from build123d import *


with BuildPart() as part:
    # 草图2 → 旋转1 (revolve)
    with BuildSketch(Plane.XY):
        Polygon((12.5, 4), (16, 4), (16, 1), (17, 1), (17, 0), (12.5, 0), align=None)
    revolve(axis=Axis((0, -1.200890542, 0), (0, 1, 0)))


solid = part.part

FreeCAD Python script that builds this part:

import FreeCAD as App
import Part
import Sketcher

V = App.Vector


def add_polygon(sketch, points):
    """Adds a closed chain of lines whose ends are joined by coincident constraints."""
    first, n = sketch.GeometryCount, len(points)
    for a, b in zip(points, points[1:] + points[:1]):
        sketch.addGeometry(Part.LineSegment(App.Vector(*a, 0), App.Vector(*b, 0)), False)
    for i in range(n):
        sketch.addConstraint(Sketcher.Constraint("Coincident", first + i, 2, first + (i + 1) % n, 1))

doc = App.newDocument("Part")
body = doc.addObject("PartDesign::Body", "Body")

# Sketch on XY plane
sketch1 = body.newObject("Sketcher::SketchObject", "Sketch")
sketch1.AttachmentSupport = (doc.getObject("XY_Plane"), [""])
sketch1.MapMode = "FlatFace"
add_polygon(sketch1, [(16, 4), (12.5, 4), (12.5, 0), (17, 0), (17, 1), (16, 1)])  # lines 0-5
sketch1.addConstraint(Sketcher.Constraint("Horizontal", 0))
sketch1.addConstraint(Sketcher.Constraint("Vertical", 1))
sketch1.addConstraint(Sketcher.Constraint("Horizontal", 2))
sketch1.addConstraint(Sketcher.Constraint("Vertical", 3))
sketch1.addConstraint(Sketcher.Constraint("Horizontal", 4))
sketch1.addConstraint(Sketcher.Constraint("Vertical", 5))
sketch1.addConstraint(Sketcher.Constraint("PointOnObject", 1, 2, -1))
sketch1.addConstraint(Sketcher.Constraint("Equal", 4, 3))
sketch1.addConstraint(Sketcher.Constraint("DistanceX", 4, 2, 4, 1, 1.0))
sketch1.addConstraint(Sketcher.Constraint("DistanceY", 1, 2, 1, 1, 4.0))
sketch1.addConstraint(Sketcher.Constraint("DistanceX", 0, 2, 0, 1, 3.5))
sketch1.addConstraint(Sketcher.Constraint("DistanceX", -1, 1, 2, 2, 17.0))
revolution = body.newObject("PartDesign::Revolution", "Revolution")
revolution.Profile = sketch1
revolution.ReferenceAxis = (sketch1, ["V_Axis"])
revolution.Angle = 360

doc.recompute()
